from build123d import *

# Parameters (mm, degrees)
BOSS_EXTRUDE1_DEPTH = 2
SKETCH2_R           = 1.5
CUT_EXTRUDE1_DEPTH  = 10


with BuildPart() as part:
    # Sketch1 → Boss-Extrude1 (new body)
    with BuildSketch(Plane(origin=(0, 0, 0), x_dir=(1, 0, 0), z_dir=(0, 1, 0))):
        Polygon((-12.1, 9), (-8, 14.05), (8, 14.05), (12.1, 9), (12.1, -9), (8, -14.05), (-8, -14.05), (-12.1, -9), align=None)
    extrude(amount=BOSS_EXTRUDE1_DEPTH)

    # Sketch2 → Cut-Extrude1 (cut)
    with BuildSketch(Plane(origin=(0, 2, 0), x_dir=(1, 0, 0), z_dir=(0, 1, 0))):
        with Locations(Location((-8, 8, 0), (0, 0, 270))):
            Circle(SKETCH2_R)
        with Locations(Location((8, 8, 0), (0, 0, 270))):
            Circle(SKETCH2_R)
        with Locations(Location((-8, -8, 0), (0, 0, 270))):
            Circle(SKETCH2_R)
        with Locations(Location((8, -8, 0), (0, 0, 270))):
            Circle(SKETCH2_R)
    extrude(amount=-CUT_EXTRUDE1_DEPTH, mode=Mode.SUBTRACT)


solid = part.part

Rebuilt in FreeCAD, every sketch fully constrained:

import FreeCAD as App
import Part
import Sketcher
from FreeCAD import Vector


def add_polygon(sketch, points):
    """Adds a closed chain of lines whose ends are joined by coincident constraints."""
    first, n = sketch.GeometryCount, len(points)
    for a, b in zip(points, points[1:] + points[:1]):
        sketch.addGeometry(Part.LineSegment(App.Vector(*a, 0), App.Vector(*b, 0)), False)
    for i in range(n):
        sketch.addConstraint(Sketcher.Constraint("Coincident", first + i, 2, first + (i + 1) % n, 1))

doc = App.newDocument("Part")
body = doc.addObject("PartDesign::Body", "Body")

sketch1 = body.newObject("Sketcher::SketchObject", "Sketch")
sketch1.AttachmentSupport = (doc.getObject("XZ_Plane"), [""])
sketch1.MapMode = "FlatFace"
add_polygon(sketch1, [(-8, -14), (-12, -9), (-12, 9), (-8, 14), (8, 14), (12, 9), (12, -9), (8, -14)])
sketch1.addConstraint(Sketcher.Constraint("Vertical", 1))
sketch1.addConstraint(Sketcher.Constraint("Horizontal", 3))
sketch1.addConstraint(Sketcher.Constraint("Vertical", 5))
sketch1.addConstraint(Sketcher.Constraint("Horizontal", 7))
sketch1.addConstraint(Sketcher.Constraint("Symmetric", 0, 2, 4, 2, -1, 1))
sketch1.addConstraint(Sketcher.Constraint("Symmetric", 2, 2, 6, 2, -1, 1))
sketch1.addConstraint(Sketcher.Constraint("Parallel", 0, 4))
sketch1.addConstraint(Sketcher.Constraint("Parallel", 2, 6))
sketch1.addConstraint(Sketcher.Constraint("Horizontal", 1, 2, 4, 2))
sketch1.addConstraint(Sketcher.Constraint("Vertical", 3, 2, 6, 2))
sketch1.addConstraint(Sketcher.Constraint("DistanceX", 3, 1, 3, 2, 16.0))
sketch1.addConstraint(Sketcher.Constraint("DistanceY", 1, 1, 1, 2, 18.0))
sketch1.addConstraint(Sketcher.Constraint("DistanceX", 0, 2, -1, 1, 12.1))
sketch1.addConstraint(Sketcher.Constraint("DistanceY", 6, 2, 3, 2, 28.1))
pad1 = body.newObject("PartDesign::Pad", "Pad")
pad1.Profile = sketch1
pad1.Length = 2
pad1.Reversed = True

sketch2 = body.newObject("Sketcher::SketchObject", "Sketch001")
sketch2.AttachmentSupport = (doc.getObject("XZ_Plane"), [""])
sketch2.MapMode = "FlatFace"
sketch2.AttachmentOffset = App.Placement(Vector(0, 0, -2), App.Rotation())
sketch2.addGeometry(Part.Circle(Vector(-8, -8, 0), Vector(0, 0, 1), 1.5), False)
sketch2.addGeometry(Part.Circle(Vector(8, -8, 0), Vector(0, 0, 1), 1.5), False)
sketch2.addGeometry(Part.Circle(Vector(-8, 8, 0), Vector(0, 0, 1), 1.5), False)
sketch2.addGeometry(Part.Circle(Vector(8, 8, 0), Vector(0, 0, 1), 1.5), False)
sketch2.addConstraint(Sketcher.Constraint("Equal", 0, 1))
sketch2.addConstraint(Sketcher.Constraint("Equal", 1, 2))
sketch2.addConstraint(Sketcher.Constraint("Equal", 2, 3))
sketch2.addConstraint(Sketcher.Constraint("Symmetric", 1, 3, 2, 3, -1, 1))
sketch2.addConstraint(Sketcher.Constraint("Symmetric", 0, 3, 3, 3, -1, 1))
sketch2.addConstraint(Sketcher.Constraint("Symmetric", 0, 3, 1, 3, -2))
sketch2.addConstraint(Sketcher.Constraint("Diameter", 0, 3.0))
sketch2.addConstraint(Sketcher.Constraint("DistanceX", 0, 3, -1, 1, 8.0))
sketch2.addConstraint(Sketcher.Constraint("DistanceY", 0, 3, -1, 1, 8.0))
pocket1 = body.newObject("PartDesign::Pocket", "Pocket")
pocket1.Profile = sketch2
pocket1.Length = 10
pocket1.Reversed = True

doc.recompute()
